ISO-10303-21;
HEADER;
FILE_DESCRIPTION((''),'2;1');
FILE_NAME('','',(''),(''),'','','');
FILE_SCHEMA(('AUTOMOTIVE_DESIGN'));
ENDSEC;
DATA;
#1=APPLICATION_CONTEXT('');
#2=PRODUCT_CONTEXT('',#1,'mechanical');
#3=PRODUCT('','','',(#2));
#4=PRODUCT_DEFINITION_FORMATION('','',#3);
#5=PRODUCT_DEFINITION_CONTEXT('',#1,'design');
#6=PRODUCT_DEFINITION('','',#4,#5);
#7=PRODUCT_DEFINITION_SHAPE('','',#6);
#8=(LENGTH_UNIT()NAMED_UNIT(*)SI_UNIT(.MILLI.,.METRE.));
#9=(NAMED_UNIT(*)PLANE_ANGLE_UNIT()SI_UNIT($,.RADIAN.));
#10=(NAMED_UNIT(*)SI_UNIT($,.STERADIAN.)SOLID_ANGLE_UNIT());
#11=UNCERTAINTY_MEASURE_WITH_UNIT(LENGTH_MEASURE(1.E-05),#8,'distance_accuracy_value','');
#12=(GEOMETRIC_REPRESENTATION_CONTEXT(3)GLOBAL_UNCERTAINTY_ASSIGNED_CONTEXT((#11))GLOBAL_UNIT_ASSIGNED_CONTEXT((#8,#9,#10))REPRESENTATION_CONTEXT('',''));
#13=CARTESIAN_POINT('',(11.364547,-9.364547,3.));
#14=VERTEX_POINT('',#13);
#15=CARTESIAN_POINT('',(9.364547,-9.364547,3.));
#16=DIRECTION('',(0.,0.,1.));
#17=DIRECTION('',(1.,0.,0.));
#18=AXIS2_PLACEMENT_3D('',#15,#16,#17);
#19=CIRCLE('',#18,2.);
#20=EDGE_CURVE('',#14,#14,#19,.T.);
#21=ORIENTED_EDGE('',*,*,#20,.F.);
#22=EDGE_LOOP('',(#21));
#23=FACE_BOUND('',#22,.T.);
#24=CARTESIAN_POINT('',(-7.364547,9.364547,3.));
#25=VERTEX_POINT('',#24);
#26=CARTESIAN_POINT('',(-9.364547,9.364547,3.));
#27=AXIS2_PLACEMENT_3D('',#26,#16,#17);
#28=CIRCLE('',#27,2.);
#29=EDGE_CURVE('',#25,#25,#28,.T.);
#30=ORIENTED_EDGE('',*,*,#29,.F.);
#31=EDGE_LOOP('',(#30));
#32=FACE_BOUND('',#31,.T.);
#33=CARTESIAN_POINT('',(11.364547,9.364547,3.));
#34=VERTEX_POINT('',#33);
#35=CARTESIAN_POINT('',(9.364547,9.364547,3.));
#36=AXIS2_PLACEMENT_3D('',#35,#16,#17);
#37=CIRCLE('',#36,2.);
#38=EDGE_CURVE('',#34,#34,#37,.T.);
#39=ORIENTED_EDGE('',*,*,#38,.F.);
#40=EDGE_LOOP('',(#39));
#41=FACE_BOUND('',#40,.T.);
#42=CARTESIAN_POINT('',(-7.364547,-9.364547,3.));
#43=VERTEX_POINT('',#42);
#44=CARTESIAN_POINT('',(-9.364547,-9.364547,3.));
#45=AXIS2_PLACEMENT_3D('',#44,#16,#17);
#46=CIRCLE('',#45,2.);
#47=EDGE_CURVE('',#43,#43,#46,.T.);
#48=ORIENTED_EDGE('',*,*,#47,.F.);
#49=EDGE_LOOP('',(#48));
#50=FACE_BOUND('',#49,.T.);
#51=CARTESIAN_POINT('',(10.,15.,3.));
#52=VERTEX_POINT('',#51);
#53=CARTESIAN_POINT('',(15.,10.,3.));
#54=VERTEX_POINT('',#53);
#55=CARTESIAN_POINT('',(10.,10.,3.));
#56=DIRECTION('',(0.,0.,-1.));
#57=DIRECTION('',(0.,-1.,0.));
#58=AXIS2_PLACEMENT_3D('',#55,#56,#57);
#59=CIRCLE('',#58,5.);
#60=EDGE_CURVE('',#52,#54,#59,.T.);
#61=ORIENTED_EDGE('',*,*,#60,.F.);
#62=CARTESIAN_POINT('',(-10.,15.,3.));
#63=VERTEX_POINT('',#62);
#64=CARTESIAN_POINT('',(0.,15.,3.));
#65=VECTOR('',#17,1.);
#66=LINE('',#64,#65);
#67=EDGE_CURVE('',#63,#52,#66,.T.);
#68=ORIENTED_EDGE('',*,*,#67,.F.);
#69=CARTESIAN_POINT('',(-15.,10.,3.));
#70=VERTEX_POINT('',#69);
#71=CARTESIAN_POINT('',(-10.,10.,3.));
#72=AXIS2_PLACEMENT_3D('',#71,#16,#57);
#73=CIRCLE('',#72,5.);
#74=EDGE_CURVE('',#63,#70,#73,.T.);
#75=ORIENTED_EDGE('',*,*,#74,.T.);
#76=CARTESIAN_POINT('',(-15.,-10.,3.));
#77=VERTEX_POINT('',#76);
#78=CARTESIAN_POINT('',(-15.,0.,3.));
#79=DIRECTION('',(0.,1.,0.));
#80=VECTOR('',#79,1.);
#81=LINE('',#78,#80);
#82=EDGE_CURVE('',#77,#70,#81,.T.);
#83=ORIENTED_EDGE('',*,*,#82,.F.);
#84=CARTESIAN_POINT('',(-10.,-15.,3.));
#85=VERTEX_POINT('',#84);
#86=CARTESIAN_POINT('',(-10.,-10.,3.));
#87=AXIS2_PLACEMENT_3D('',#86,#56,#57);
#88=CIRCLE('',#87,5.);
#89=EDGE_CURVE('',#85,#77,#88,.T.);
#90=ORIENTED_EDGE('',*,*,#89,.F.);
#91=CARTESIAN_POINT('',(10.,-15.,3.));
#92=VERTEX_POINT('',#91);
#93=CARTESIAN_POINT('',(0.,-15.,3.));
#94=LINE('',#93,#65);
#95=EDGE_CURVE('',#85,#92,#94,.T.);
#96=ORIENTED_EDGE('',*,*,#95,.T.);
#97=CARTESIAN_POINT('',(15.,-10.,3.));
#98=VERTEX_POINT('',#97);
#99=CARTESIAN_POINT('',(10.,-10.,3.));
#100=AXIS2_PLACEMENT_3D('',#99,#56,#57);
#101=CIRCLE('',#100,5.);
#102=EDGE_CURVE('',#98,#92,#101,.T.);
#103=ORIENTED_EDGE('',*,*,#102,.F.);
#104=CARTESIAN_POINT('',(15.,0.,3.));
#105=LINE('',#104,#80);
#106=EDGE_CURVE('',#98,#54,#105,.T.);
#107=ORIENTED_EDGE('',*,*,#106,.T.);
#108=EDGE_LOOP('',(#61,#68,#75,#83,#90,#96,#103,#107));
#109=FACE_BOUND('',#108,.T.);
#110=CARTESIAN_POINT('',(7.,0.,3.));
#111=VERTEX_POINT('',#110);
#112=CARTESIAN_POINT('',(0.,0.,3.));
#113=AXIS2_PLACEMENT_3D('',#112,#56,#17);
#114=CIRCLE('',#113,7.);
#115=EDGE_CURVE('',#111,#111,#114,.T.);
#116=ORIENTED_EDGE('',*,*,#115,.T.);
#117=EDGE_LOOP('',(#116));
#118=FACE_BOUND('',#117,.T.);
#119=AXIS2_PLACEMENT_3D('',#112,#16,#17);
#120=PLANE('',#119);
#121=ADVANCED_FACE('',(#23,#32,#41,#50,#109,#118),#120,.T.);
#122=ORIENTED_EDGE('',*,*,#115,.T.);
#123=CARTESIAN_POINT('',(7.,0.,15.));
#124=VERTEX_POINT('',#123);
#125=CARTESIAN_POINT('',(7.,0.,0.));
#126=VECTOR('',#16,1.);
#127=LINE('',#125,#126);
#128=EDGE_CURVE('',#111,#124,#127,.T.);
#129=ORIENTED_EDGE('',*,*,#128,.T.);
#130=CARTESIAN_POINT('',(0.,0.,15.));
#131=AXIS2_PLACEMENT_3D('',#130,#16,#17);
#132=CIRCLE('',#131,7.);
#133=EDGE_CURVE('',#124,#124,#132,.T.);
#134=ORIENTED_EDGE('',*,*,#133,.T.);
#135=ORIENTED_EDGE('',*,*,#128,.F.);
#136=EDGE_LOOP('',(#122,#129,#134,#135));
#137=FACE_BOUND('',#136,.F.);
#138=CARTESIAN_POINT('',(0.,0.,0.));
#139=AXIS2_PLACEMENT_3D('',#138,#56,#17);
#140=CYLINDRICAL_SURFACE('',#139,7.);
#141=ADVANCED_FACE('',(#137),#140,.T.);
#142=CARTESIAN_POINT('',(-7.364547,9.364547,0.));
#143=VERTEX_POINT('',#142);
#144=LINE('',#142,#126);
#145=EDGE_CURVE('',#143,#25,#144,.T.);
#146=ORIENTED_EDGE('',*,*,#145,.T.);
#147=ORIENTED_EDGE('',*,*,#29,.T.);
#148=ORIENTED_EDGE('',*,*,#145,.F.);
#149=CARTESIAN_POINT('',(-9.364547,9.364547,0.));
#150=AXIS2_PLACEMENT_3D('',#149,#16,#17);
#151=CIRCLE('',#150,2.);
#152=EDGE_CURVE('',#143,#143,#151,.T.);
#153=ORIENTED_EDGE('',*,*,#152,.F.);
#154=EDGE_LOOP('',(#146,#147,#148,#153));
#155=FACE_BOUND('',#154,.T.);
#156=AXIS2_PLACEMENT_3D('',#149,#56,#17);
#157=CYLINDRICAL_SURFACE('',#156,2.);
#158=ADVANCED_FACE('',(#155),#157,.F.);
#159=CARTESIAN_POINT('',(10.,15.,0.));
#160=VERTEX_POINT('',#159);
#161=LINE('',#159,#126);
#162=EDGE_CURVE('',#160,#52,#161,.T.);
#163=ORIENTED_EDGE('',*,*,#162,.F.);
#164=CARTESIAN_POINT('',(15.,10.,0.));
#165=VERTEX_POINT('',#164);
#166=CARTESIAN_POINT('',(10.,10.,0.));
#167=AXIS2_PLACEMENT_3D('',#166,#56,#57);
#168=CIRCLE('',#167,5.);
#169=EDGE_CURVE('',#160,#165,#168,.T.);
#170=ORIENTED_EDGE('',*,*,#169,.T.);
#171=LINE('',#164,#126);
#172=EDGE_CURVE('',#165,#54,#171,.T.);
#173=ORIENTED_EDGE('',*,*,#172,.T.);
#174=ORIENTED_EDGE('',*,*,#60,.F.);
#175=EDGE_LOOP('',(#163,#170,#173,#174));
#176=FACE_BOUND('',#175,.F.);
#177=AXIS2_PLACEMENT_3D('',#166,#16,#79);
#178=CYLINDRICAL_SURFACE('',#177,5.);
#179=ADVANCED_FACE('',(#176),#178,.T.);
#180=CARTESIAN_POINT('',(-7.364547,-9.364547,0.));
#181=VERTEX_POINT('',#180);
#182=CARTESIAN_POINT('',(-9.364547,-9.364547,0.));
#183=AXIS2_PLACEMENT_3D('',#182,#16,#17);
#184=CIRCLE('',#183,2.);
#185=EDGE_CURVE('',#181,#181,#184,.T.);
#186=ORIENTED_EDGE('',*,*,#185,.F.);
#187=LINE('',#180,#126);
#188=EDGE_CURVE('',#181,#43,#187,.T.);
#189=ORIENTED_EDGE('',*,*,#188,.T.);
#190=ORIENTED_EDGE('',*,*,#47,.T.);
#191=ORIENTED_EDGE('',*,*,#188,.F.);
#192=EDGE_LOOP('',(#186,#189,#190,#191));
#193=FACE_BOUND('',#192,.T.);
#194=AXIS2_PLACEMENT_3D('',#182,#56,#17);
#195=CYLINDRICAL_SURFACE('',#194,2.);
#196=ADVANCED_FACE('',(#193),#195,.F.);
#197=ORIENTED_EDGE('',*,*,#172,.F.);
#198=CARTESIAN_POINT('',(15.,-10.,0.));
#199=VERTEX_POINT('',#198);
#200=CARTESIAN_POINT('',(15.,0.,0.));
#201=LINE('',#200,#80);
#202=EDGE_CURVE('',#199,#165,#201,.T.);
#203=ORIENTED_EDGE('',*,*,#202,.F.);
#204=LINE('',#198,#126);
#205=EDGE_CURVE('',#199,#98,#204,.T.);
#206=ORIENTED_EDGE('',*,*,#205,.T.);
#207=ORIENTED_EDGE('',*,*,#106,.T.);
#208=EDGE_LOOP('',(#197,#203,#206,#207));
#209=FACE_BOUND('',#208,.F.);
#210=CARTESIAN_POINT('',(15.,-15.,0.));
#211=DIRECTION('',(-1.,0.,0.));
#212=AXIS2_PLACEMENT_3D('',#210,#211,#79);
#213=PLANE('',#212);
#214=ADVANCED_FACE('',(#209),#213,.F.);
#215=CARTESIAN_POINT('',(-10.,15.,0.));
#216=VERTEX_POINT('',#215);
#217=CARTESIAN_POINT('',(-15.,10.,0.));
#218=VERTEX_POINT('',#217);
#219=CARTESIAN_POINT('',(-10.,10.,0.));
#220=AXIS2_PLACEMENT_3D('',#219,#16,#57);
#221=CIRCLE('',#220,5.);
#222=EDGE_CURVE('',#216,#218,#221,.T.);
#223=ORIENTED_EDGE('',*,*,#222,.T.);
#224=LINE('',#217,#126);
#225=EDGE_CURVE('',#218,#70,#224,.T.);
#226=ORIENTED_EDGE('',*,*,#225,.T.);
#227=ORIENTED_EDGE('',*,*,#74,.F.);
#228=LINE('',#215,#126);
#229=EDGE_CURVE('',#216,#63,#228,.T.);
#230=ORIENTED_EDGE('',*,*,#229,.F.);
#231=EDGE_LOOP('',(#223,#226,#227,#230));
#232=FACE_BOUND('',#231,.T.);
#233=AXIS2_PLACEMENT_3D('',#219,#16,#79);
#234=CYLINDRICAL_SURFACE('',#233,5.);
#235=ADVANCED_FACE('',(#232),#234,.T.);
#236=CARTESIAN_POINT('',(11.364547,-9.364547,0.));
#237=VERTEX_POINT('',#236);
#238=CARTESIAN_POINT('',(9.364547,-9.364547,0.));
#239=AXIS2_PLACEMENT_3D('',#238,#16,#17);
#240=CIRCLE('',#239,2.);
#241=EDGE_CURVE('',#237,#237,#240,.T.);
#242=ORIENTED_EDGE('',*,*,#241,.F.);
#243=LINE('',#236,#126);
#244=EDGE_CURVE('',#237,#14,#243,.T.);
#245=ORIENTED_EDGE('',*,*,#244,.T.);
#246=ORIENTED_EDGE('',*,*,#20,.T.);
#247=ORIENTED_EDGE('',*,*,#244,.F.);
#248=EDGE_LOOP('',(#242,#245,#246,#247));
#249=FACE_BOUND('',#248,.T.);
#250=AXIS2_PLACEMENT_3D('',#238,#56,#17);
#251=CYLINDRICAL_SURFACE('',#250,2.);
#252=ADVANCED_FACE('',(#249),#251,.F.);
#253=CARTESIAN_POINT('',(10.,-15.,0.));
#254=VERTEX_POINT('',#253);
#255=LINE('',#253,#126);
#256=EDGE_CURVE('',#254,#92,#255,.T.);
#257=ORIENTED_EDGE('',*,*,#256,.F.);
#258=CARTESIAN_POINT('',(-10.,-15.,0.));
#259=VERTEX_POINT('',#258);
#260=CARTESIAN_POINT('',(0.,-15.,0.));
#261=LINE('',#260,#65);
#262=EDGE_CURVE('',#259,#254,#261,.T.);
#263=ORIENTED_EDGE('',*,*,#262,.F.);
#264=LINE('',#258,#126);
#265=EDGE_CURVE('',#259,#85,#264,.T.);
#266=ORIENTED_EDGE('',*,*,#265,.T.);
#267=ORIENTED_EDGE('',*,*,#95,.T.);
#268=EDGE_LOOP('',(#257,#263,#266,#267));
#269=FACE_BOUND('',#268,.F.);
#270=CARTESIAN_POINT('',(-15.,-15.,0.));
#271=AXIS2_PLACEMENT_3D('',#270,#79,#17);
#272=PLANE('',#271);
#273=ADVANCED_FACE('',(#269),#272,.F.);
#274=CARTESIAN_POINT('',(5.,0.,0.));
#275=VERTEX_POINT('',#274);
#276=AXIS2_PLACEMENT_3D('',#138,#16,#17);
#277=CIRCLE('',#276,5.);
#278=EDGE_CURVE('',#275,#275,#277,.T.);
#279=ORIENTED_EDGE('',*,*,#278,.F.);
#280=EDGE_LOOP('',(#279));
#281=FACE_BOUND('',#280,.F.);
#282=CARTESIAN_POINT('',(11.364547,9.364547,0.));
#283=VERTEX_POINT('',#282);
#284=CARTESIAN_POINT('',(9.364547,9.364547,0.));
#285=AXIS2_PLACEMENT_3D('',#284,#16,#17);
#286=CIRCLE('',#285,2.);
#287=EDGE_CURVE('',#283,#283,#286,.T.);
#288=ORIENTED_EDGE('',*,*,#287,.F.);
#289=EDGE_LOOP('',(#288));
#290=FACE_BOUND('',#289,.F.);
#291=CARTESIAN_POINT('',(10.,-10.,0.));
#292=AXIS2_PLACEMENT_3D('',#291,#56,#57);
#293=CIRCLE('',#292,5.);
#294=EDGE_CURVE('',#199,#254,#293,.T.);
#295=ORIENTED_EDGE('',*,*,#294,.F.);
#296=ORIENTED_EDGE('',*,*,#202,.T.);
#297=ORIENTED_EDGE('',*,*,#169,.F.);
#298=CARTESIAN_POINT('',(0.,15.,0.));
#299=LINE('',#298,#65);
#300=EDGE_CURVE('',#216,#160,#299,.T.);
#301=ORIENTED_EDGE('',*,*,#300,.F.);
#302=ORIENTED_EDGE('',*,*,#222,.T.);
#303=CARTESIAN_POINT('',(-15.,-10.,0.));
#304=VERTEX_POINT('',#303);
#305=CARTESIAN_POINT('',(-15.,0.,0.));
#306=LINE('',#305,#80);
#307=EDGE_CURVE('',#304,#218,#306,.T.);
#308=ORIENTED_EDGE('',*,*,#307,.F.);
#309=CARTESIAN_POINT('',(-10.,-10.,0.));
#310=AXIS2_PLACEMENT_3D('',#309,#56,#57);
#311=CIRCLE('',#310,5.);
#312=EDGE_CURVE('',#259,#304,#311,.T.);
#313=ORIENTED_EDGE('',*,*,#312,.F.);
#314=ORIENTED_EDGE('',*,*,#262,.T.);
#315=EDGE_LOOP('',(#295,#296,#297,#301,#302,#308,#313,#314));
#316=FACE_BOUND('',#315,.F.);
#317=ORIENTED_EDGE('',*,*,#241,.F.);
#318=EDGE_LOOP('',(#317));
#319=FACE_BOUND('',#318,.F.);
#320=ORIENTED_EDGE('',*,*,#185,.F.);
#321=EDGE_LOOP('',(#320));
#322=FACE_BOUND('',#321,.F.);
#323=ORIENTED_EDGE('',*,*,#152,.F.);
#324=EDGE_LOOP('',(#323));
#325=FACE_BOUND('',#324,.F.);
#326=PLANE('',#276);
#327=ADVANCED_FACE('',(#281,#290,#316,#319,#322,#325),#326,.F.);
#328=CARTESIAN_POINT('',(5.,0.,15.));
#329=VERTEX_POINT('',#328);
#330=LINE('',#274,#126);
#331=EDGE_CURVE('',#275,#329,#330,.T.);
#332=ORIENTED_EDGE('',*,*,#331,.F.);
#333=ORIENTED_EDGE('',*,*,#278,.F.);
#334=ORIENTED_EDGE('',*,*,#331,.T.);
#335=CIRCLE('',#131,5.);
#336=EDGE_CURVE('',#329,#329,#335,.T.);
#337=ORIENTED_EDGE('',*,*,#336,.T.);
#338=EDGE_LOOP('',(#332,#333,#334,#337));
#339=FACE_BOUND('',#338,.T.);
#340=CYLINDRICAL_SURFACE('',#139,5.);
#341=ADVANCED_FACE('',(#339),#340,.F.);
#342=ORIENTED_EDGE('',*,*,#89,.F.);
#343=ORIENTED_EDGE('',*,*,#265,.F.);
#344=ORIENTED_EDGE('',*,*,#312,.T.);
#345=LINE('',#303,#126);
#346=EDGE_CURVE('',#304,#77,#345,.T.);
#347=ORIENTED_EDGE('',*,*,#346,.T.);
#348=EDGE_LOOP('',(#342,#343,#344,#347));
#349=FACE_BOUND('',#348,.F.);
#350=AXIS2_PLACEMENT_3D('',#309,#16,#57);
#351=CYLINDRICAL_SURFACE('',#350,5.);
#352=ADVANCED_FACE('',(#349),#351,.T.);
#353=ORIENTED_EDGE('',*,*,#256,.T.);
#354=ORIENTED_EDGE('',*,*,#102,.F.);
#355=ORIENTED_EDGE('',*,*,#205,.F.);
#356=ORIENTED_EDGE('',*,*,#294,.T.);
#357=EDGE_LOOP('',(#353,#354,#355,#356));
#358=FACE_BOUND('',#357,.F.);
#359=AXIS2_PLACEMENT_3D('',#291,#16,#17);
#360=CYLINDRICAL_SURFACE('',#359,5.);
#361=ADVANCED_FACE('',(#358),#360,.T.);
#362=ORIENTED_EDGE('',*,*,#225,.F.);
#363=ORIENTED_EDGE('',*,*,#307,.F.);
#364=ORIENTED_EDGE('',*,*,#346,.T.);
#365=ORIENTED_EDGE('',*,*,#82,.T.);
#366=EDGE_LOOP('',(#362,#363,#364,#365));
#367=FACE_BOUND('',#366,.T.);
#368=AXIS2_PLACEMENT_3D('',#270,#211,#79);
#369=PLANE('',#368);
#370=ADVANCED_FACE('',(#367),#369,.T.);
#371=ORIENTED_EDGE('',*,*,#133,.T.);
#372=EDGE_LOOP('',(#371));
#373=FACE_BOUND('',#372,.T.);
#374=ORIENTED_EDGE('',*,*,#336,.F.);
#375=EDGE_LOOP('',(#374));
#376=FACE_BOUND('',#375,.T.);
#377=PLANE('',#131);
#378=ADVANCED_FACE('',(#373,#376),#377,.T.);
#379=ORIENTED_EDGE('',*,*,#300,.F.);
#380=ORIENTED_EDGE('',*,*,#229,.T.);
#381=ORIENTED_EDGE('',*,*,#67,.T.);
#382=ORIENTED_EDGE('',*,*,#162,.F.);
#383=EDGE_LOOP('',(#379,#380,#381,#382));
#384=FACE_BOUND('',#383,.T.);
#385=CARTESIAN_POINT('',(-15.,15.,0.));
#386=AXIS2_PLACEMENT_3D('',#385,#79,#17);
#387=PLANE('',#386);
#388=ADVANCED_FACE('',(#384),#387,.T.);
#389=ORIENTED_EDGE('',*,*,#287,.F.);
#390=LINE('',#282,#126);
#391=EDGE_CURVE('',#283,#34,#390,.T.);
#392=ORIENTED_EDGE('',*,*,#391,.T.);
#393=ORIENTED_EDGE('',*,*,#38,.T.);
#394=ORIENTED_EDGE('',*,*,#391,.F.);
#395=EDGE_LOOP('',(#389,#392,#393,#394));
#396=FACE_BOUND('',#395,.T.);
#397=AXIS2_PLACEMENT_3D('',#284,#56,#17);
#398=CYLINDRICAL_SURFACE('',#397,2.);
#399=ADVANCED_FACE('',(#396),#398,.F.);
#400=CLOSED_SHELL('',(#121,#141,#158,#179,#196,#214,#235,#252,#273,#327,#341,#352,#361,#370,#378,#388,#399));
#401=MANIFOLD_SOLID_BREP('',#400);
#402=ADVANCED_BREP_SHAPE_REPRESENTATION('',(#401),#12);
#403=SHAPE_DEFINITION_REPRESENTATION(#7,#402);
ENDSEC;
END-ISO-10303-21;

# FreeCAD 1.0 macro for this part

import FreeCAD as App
import Part
import Sketcher

V = App.Vector


def edges_at(feature, points):
    """Names of the edges that pass closest to the given points."""
    edges = feature.Shape.Edges
    near = lambda p: min(range(len(edges)), key=lambda i: edges[i].distToShape(Part.Vertex(*p))[0])
    return sorted({f"Edge{near(p) + 1}" for p in points})

doc = App.newDocument("Part")
body = doc.addObject("PartDesign::Body", "Body")

# Sketch on XY plane
sketch1 = body.newObject("Sketcher::SketchObject", "Sketch")
sketch1.AttachmentSupport = (doc.getObject("XY_Plane"), [""])
sketch1.MapMode = "FlatFace"
sketch1.addGeometry([
    Part.LineSegment(V(-15, 15, 0), V(-15, -15, 0)),  # 0
    Part.LineSegment(V(-15, -15, 0), V(15, -15, 0)),  # 1
    Part.LineSegment(V(15, -15, 0), V(15, 15, 0)),  # 2
    Part.LineSegment(V(15, 15, 0), V(-15, 15, 0)),  # 3
    Part.Circle(V(-9.364547, -9.364547, 0), V(0, 0, 1), 2),  # 4
    Part.Circle(V(9.364547, -9.364547, 0), V(0, 0, 1), 2),  # 5
    Part.Circle(V(-9.364547, 9.364547, 0), V(0, 0, 1), 2),  # 6
    Part.Circle(V(0, 0, 0), V(0, 0, 1), 5),  # 7
    Part.Circle(V(9.364547, 9.364547, 0), V(0, 0, 1), 2),  # 8
], False)
sketch1.addConstraint([
    Sketcher.Constraint("Coincident", 0, 2, 1, 1),
    Sketcher.Constraint("Coincident", 1, 2, 2, 1),
    Sketcher.Constraint("Coincident", 2, 2, 3, 1),
    Sketcher.Constraint("Coincident", 3, 2, 0, 1),
    Sketcher.Constraint("Vertical", 0),
    Sketcher.Constraint("Horizontal", 1),
    Sketcher.Constraint("Vertical", 2),
    Sketcher.Constraint("Horizontal", 3),
    Sketcher.Constraint("Coincident", 7, 3, -1, 1),
    Sketcher.Constraint("Equal", 4, 5),
    Sketcher.Constraint("Equal", 5, 6),
    Sketcher.Constraint("Equal", 6, 8),
    Sketcher.Constraint("Symmetric", 5, 3, 6, 3, -1, 1),
    Sketcher.Constraint("Symmetric", 4, 3, 8, 3, -1, 1),
    Sketcher.Constraint("Symmetric", 0, 2, 2, 2, -1, 1),
    Sketcher.Constraint("Symmetric", 4, 3, 5, 3, -2),
    Sketcher.Constraint("Equal", 3, 0),
    Sketcher.Constraint("Diameter", 4, 4.0),
    Sketcher.Constraint("Diameter", 7, 10.0),
    Sketcher.Constraint("DistanceX", 1, 1, 1, 2, 30.0),
    Sketcher.Constraint("DistanceX", 4, 3, -1, 1, 9.364547),
    Sketcher.Constraint("DistanceY", 4, 3, -1, 1, 9.364547),
])
pad1 = body.newObject("PartDesign::Pad", "Pad")
pad1.Profile = sketch1
pad1.Length = 3

# Sketch on XY plane
sketch2 = body.newObject("Sketcher::SketchObject", "Sketch001")
sketch2.AttachmentSupport = (doc.getObject("XY_Plane"), [""])
sketch2.MapMode = "FlatFace"
sketch2.addGeometry([
    Part.Circle(V(0, 0, 0), V(0, 0, 1), 7),
    Part.Circle(V(0, 0, 0), V(0, 0, 1), 5),
], False)
sketch2.addConstraint([
    Sketcher.Constraint("Coincident", 0, 3, -1, 1),
    Sketcher.Constraint("Coincident", 1, 3, -1, 1),
    Sketcher.Constraint("Diameter", 0, 14.0),
    Sketcher.Constraint("Diameter", 1, 10.0),
])
pad2 = body.newObject("PartDesign::Pad", "Pad001")
pad2.Profile = sketch2
pad2.Length = 15
doc.recompute()

fillet = body.newObject("PartDesign::Fillet", "Fillet")
fillet.Base = (pad2, edges_at(pad2, [
    (-15, 15, 1.5),
    (15, 15, 1.5),
    (-15, -15, 1.5),
    (15, -15, 1.5),
]))
fillet.Radius = 5

doc.recompute()
